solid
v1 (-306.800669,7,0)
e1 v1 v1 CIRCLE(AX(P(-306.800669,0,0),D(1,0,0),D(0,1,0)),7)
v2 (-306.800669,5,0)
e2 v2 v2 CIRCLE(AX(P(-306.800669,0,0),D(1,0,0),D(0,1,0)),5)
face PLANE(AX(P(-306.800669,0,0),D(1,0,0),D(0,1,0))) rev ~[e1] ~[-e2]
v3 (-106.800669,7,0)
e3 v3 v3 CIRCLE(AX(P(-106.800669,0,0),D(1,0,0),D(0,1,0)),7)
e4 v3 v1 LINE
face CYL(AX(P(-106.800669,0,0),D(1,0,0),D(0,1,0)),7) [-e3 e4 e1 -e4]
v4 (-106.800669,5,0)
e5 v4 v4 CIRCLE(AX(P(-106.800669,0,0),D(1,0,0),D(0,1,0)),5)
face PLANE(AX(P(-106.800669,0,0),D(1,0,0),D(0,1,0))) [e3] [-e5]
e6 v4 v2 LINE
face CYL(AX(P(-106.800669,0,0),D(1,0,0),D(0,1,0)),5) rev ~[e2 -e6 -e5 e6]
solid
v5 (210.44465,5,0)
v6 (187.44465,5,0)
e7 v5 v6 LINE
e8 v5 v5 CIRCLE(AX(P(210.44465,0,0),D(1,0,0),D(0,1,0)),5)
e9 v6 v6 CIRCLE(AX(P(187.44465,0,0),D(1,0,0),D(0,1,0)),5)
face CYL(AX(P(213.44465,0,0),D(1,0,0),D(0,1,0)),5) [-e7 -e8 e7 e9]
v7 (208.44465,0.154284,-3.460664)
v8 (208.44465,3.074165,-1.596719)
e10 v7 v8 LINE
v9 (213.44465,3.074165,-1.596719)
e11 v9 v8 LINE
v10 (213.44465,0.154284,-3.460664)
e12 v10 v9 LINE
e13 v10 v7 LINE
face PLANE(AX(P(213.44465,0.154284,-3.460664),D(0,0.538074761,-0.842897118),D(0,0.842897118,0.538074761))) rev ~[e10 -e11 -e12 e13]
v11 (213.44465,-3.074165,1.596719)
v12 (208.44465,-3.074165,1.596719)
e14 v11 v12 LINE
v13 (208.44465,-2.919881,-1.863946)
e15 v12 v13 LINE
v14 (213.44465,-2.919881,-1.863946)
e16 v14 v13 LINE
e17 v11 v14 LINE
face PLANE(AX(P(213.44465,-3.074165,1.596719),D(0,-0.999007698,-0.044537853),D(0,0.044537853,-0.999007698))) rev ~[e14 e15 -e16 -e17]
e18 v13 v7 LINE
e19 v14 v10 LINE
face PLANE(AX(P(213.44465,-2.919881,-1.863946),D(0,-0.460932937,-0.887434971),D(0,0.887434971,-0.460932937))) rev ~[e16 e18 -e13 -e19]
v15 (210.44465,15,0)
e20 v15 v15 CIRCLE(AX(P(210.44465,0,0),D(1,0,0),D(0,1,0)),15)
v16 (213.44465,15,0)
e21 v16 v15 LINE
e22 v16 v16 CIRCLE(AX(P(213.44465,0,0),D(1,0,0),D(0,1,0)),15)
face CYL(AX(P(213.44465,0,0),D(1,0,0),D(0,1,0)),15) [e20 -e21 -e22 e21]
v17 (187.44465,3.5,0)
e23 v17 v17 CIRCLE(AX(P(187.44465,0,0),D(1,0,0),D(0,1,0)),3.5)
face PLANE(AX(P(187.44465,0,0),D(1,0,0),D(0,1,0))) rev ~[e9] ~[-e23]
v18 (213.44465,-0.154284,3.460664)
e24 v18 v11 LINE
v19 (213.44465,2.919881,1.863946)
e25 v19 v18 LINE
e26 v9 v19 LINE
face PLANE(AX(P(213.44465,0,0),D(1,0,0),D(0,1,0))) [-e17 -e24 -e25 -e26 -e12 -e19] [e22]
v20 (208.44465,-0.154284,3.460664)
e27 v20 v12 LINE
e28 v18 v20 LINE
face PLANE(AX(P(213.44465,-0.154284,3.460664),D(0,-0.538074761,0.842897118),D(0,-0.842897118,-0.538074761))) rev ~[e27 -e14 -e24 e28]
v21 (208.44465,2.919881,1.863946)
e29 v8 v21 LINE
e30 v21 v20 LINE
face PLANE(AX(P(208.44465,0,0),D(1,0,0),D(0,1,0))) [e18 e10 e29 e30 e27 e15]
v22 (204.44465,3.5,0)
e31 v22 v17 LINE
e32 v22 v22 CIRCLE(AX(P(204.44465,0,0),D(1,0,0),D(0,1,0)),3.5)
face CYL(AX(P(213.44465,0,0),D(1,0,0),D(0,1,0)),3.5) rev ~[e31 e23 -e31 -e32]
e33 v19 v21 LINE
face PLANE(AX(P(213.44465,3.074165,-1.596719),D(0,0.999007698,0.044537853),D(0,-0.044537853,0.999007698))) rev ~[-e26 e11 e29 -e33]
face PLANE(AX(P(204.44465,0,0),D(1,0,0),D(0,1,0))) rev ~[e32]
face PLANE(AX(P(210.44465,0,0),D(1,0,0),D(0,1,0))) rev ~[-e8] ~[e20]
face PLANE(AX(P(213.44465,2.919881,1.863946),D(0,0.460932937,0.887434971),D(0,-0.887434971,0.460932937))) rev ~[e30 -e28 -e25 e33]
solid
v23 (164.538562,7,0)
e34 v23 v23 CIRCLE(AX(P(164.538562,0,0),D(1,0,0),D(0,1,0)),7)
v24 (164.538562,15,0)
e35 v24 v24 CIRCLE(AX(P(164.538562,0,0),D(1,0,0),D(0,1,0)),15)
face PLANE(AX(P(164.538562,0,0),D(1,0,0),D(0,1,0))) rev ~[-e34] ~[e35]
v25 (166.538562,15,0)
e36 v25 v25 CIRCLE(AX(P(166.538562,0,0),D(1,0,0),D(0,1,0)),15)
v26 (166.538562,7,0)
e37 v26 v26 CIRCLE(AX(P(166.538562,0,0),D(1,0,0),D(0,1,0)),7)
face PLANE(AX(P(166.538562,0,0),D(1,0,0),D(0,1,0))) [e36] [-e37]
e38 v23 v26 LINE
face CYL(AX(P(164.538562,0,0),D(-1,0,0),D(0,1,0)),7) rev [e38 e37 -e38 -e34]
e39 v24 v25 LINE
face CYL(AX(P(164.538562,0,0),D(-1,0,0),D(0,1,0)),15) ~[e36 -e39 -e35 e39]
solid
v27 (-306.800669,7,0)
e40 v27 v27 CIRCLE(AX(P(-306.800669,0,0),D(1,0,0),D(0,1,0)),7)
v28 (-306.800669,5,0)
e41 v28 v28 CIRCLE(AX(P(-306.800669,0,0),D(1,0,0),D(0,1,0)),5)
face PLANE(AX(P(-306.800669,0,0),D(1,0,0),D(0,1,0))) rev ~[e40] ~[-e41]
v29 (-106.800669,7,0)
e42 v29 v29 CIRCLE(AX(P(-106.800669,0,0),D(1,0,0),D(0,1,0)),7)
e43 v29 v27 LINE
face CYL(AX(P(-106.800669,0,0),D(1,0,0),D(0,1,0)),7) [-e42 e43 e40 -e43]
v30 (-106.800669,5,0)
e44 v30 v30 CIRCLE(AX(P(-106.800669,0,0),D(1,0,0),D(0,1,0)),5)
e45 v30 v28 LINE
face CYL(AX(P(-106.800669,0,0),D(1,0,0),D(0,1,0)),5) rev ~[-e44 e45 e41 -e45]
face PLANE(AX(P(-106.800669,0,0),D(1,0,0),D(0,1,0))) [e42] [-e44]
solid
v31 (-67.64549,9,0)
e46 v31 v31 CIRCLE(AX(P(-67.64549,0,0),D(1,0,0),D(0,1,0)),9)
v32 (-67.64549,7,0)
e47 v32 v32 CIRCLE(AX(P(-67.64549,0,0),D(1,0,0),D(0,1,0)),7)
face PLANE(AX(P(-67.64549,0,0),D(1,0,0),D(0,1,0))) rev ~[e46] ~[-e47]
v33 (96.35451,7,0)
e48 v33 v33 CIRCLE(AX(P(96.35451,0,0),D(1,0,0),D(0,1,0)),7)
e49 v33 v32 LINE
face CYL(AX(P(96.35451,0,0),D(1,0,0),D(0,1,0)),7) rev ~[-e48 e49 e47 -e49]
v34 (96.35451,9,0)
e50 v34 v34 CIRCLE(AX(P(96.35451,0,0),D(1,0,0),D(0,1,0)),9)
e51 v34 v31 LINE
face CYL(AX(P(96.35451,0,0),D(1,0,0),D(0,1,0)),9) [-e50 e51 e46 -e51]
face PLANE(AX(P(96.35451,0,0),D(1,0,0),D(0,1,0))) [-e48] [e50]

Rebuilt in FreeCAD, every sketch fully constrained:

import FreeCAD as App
import Part
import Sketcher

V = App.Vector
Q = App.Units.Quantity

doc = App.newDocument("Part")
params = doc.addObject("Spreadsheet::Sheet", "Params")
for row, (alias, value) in enumerate([
    ("sketch1_diameter", "14 mm"),
    ("sketch1_diameter2", "10 mm"),
    ("pad1_length", "200 mm"),
    ("sketch2_diameter", "14 mm"),
    ("sketch2_diameter2", "10 mm"),
    ("pad2_length", "200 mm"),
    ("sketch3_diameter", "18 mm"),
    ("sketch3_diameter2", "14 mm"),
    ("pad3_length", "164 mm"),
    ("sketch4_diameter", "10 mm"),
    ("sketch4_diameter2", "7 mm"),
    ("pad4_length", "26 mm"),
    ("sketch5_diameter", "30 mm"),
    ("sketch5_diameter2", "10 mm"),
    ("pad5_length", "3 mm"),
    ("sketch6_diameter", "7 mm"),
    ("pad6_length", "9 mm"),
    ("pocket1_length", "5 mm"),
    ("sketch8_diameter", "30 mm"),
    ("sketch8_diameter2", "14 mm"),
    ("pad7_length", "2 mm"),
], start=1):
    params.set(f"A{row}", alias)
    params.set(f"B{row}", "=" + value)
    params.setAlias(f"B{row}", alias)

body = doc.addObject("PartDesign::Body", "Body")

sketch1 = doc.addObject("Sketcher::SketchObject", "Sketch")
body.addObject(sketch1)
sketch1.AttachmentSupport = (doc.YZ_Plane, [""])
sketch1.MapMode = "FlatFace"
sketch1.AttachmentOffset = App.Placement(V(0, 0, -106.800669), App.Rotation())
sketch1.addGeometry([
    Part.Circle(V(0, 0, 0), V(0, 0, 1), 7),
    Part.Circle(V(0, 0, 0), V(0, 0, 1), 5),
], False)
sketch1.addConstraint([
    Sketcher.Constraint("Coincident", 0, 3, -1, 1),
    Sketcher.Constraint("Coincident", 1, 3, -1, 1),
    Sketcher.Constraint("Diameter", 0, Q("14 mm")),
    Sketcher.Constraint("Diameter", 1, Q("10 mm")),
])
sketch1.setExpression("Constraints[2]", "Params.sketch1_diameter")
sketch1.setExpression("Constraints[3]", "Params.sketch1_diameter2")
pad1 = doc.addObject("PartDesign::Pad", "Pad")
body.addObject(pad1)
pad1.Profile = sketch1
pad1.setExpression("Length", "Params.pad1_length")
pad1.Reversed = True
body2 = doc.addObject("PartDesign::Body", "Body001")

sketch2 = doc.addObject("Sketcher::SketchObject", "Sketch001")
body2.addObject(sketch2)
sketch2.AttachmentSupport = (doc.getObject("YZ_Plane001"), [""])
sketch2.MapMode = "FlatFace"
sketch2.AttachmentOffset = App.Placement(V(0, 0, -106.800669), App.Rotation())
sketch2.addGeometry([
    Part.Circle(V(0, 0, 0), V(0, 0, 1), 7),
    Part.Circle(V(0, 0, 0), V(0, 0, 1), 5),
], False)
sketch2.addConstraint([
    Sketcher.Constraint("Coincident", 0, 3, -1, 1),
    Sketcher.Constraint("Coincident", 1, 3, -1, 1),
    Sketcher.Constraint("Diameter", 0, Q("14 mm")),
    Sketcher.Constraint("Diameter", 1, Q("10 mm")),
])
sketch2.setExpression("Constraints[2]", "Params.sketch2_diameter")
sketch2.setExpression("Constraints[3]", "Params.sketch2_diameter2")
pad2 = doc.addObject("PartDesign::Pad", "Pad001")
body2.addObject(pad2)
pad2.Profile = sketch2
pad2.setExpression("Length", "Params.pad2_length")
pad2.Reversed = True
body3 = doc.addObject("PartDesign::Body", "Body002")

sketch3 = doc.addObject("Sketcher::SketchObject", "Sketch002")
body3.addObject(sketch3)
sketch3.AttachmentSupport = (doc.getObject("YZ_Plane002"), [""])
sketch3.MapMode = "FlatFace"
sketch3.AttachmentOffset = App.Placement(V(0, 0, 96.35451), App.Rotation())
sketch3.addGeometry([
    Part.Circle(V(0, 0, 0), V(0, 0, 1), 9),
    Part.Circle(V(0, 0, 0), V(0, 0, 1), 7),
], False)
sketch3.addConstraint([
    Sketcher.Constraint("Coincident", 0, 3, -1, 1),
    Sketcher.Constraint("Coincident", 1, 3, -1, 1),
    Sketcher.Constraint("Diameter", 0, Q("18 mm")),
    Sketcher.Constraint("Diameter", 1, Q("14 mm")),
])
sketch3.setExpression("Constraints[2]", "Params.sketch3_diameter")
sketch3.setExpression("Constraints[3]", "Params.sketch3_diameter2")
pad3 = doc.addObject("PartDesign::Pad", "Pad002")
body3.addObject(pad3)
pad3.Profile = sketch3
pad3.setExpression("Length", "Params.pad3_length")
pad3.Reversed = True
body4 = doc.addObject("PartDesign::Body", "Body003")

sketch4 = doc.addObject("Sketcher::SketchObject", "Sketch003")
body4.addObject(sketch4)
sketch4.AttachmentSupport = (doc.getObject("YZ_Plane003"), [""])
sketch4.MapMode = "FlatFace"
sketch4.AttachmentOffset = App.Placement(V(0, 0, 213.44465), App.Rotation())
sketch4.addGeometry([
    Part.Circle(V(0, 0, 0), V(0, 0, 1), 5),
    Part.Circle(V(0, 0, 0), V(0, 0, 1), 3.5),
], False)
sketch4.addConstraint([
    Sketcher.Constraint("Coincident", 0, 3, -1, 1),
    Sketcher.Constraint("Coincident", 1, 3, -1, 1),
    Sketcher.Constraint("Diameter", 0, Q("10 mm")),
    Sketcher.Constraint("Diameter", 1, Q("7 mm")),
])
sketch4.setExpression("Constraints[2]", "Params.sketch4_diameter")
sketch4.setExpression("Constraints[3]", "Params.sketch4_diameter2")
pad4 = doc.addObject("PartDesign::Pad", "Pad003")
body4.addObject(pad4)
pad4.Profile = sketch4
pad4.setExpression("Length", "Params.pad4_length")
pad4.Reversed = True

sketch5 = doc.addObject("Sketcher::SketchObject", "Sketch004")
body4.addObject(sketch5)
sketch5.AttachmentSupport = (doc.getObject("YZ_Plane003"), [""])
sketch5.MapMode = "FlatFace"
sketch5.AttachmentOffset = App.Placement(V(0, 0, 213.44465), App.Rotation())
sketch5.addGeometry([
    Part.Circle(V(0, 0, 0), V(0, 0, 1), 15),
    Part.Circle(V(0, 0, 0), V(0, 0, 1), 5),
], False)
sketch5.addConstraint([
    Sketcher.Constraint("Coincident", 0, 3, -1, 1),
    Sketcher.Constraint("Coincident", 1, 3, -1, 1),
    Sketcher.Constraint("Diameter", 0, Q("30 mm")),
    Sketcher.Constraint("Diameter", 1, Q("10 mm")),
])
sketch5.setExpression("Constraints[2]", "Params.sketch5_diameter")
sketch5.setExpression("Constraints[3]", "Params.sketch5_diameter2")
pad5 = doc.addObject("PartDesign::Pad", "Pad004")
body4.addObject(pad5)
pad5.Profile = sketch5
pad5.setExpression("Length", "Params.pad5_length")
pad5.Reversed = True

sketch6 = doc.addObject("Sketcher::SketchObject", "Sketch005")
body4.addObject(sketch6)
sketch6.AttachmentSupport = (doc.getObject("YZ_Plane003"), [""])
sketch6.MapMode = "FlatFace"
sketch6.AttachmentOffset = App.Placement(V(0, 0, 213.44465), App.Rotation())
sketch6.addGeometry(Part.Circle(V(0, 0, 0), V(0, 0, 1), 3.5), False)
sketch6.addConstraint([
    Sketcher.Constraint("Coincident", 0, 3, -1, 1),
    Sketcher.Constraint("Diameter", 0, Q("7 mm")),
])
sketch6.setExpression("Constraints[1]", "Params.sketch6_diameter")
pad6 = doc.addObject("PartDesign::Pad", "Pad005")
body4.addObject(pad6)
pad6.Profile = sketch6
pad6.setExpression("Length", "Params.pad6_length")
pad6.Reversed = True

sketch7 = doc.addObject("Sketcher::SketchObject", "Sketch006")
body4.addObject(sketch7)
sketch7.AttachmentSupport = (doc.getObject("YZ_Plane003"), [""])
sketch7.MapMode = "FlatFace"
sketch7.AttachmentOffset = App.Placement(V(0, 0, 213.44465), App.Rotation())
sketch7.addGeometry([
    Part.LineSegment(V(0.154284, -3.460664, 0), V(3.074165, -1.596719, 0)),
    Part.LineSegment(V(3.074165, -1.596719, 0), V(2.919881, 1.863946, 0)),
    Part.LineSegment(V(2.919881, 1.863946, 0), V(-0.154284, 3.460664, 0)),
    Part.LineSegment(V(-0.154284, 3.460664, 0), V(-3.074165, 1.596719, 0)),
    Part.LineSegment(V(-3.074165, 1.596719, 0), V(-2.919881, -1.863946, 0)),
    Part.LineSegment(V(-2.919881, -1.863946, 0), V(0.154284, -3.460664, 0)),
], False)
sketch7.addConstraint([
    Sketcher.Constraint("Coincident", 0, 2, 1, 1),
    Sketcher.Constraint("Coincident", 1, 2, 2, 1),
    Sketcher.Constraint("Coincident", 2, 2, 3, 1),
    Sketcher.Constraint("Coincident", 3, 2, 4, 1),
    Sketcher.Constraint("Coincident", 4, 2, 5, 1),
    Sketcher.Constraint("Coincident", 5, 2, 0, 1),
    Sketcher.Constraint("Symmetric", 0, 2, 3, 2, -1, 1),
    Sketcher.Constraint("Symmetric", 1, 2, 4, 2, -1, 1),
    Sketcher.Constraint("Symmetric", 2, 2, 5, 2, -1, 1),
    Sketcher.Constraint("Equal", 0, 1),
    Sketcher.Constraint("Equal", 1, 2),
    Sketcher.Constraint("Distance", 0, Q("3.464102 mm")),
    Sketcher.Constraint("DistanceY", 0, 2, -1, 1, Q("1.596719 mm")),
    Sketcher.Constraint("DistanceX", -1, 1, 1, 2, Q("2.919881 mm")),
    Sketcher.Constraint("DistanceY", 1, 2, 2, 2, Q("1.596719 mm")),
])
pocket1 = doc.addObject("PartDesign::Pocket", "Pocket")
body4.addObject(pocket1)
pocket1.Profile = sketch7
pocket1.setExpression("Length", "Params.pocket1_length")
body5 = doc.addObject("PartDesign::Body", "Body004")

sketch8 = doc.addObject("Sketcher::SketchObject", "Sketch007")
body5.addObject(sketch8)
sketch8.AttachmentSupport = (doc.getObject("YZ_Plane004"), [""])
sketch8.MapMode = "FlatFace"
sketch8.AttachmentOffset = App.Placement(V(0, 0, 164.538562), App.Rotation())
sketch8.addGeometry([
    Part.Circle(V(0, 0, 0), V(0, 0, 1), 15),
    Part.Circle(V(0, 0, 0), V(0, 0, 1), 7),
], False)
sketch8.addConstraint([
    Sketcher.Constraint("Coincident", 0, 3, -1, 1),
    Sketcher.Constraint("Coincident", 1, 3, -1, 1),
    Sketcher.Constraint("Diameter", 0, Q("30 mm")),
    Sketcher.Constraint("Diameter", 1, Q("14 mm")),
])
sketch8.setExpression("Constraints[2]", "Params.sketch8_diameter")
sketch8.setExpression("Constraints[3]", "Params.sketch8_diameter2")
pad7 = doc.addObject("PartDesign::Pad", "Pad006")
body5.addObject(pad7)
pad7.Profile = sketch8
pad7.setExpression("Length", "Params.pad7_length")

doc.recompute()
